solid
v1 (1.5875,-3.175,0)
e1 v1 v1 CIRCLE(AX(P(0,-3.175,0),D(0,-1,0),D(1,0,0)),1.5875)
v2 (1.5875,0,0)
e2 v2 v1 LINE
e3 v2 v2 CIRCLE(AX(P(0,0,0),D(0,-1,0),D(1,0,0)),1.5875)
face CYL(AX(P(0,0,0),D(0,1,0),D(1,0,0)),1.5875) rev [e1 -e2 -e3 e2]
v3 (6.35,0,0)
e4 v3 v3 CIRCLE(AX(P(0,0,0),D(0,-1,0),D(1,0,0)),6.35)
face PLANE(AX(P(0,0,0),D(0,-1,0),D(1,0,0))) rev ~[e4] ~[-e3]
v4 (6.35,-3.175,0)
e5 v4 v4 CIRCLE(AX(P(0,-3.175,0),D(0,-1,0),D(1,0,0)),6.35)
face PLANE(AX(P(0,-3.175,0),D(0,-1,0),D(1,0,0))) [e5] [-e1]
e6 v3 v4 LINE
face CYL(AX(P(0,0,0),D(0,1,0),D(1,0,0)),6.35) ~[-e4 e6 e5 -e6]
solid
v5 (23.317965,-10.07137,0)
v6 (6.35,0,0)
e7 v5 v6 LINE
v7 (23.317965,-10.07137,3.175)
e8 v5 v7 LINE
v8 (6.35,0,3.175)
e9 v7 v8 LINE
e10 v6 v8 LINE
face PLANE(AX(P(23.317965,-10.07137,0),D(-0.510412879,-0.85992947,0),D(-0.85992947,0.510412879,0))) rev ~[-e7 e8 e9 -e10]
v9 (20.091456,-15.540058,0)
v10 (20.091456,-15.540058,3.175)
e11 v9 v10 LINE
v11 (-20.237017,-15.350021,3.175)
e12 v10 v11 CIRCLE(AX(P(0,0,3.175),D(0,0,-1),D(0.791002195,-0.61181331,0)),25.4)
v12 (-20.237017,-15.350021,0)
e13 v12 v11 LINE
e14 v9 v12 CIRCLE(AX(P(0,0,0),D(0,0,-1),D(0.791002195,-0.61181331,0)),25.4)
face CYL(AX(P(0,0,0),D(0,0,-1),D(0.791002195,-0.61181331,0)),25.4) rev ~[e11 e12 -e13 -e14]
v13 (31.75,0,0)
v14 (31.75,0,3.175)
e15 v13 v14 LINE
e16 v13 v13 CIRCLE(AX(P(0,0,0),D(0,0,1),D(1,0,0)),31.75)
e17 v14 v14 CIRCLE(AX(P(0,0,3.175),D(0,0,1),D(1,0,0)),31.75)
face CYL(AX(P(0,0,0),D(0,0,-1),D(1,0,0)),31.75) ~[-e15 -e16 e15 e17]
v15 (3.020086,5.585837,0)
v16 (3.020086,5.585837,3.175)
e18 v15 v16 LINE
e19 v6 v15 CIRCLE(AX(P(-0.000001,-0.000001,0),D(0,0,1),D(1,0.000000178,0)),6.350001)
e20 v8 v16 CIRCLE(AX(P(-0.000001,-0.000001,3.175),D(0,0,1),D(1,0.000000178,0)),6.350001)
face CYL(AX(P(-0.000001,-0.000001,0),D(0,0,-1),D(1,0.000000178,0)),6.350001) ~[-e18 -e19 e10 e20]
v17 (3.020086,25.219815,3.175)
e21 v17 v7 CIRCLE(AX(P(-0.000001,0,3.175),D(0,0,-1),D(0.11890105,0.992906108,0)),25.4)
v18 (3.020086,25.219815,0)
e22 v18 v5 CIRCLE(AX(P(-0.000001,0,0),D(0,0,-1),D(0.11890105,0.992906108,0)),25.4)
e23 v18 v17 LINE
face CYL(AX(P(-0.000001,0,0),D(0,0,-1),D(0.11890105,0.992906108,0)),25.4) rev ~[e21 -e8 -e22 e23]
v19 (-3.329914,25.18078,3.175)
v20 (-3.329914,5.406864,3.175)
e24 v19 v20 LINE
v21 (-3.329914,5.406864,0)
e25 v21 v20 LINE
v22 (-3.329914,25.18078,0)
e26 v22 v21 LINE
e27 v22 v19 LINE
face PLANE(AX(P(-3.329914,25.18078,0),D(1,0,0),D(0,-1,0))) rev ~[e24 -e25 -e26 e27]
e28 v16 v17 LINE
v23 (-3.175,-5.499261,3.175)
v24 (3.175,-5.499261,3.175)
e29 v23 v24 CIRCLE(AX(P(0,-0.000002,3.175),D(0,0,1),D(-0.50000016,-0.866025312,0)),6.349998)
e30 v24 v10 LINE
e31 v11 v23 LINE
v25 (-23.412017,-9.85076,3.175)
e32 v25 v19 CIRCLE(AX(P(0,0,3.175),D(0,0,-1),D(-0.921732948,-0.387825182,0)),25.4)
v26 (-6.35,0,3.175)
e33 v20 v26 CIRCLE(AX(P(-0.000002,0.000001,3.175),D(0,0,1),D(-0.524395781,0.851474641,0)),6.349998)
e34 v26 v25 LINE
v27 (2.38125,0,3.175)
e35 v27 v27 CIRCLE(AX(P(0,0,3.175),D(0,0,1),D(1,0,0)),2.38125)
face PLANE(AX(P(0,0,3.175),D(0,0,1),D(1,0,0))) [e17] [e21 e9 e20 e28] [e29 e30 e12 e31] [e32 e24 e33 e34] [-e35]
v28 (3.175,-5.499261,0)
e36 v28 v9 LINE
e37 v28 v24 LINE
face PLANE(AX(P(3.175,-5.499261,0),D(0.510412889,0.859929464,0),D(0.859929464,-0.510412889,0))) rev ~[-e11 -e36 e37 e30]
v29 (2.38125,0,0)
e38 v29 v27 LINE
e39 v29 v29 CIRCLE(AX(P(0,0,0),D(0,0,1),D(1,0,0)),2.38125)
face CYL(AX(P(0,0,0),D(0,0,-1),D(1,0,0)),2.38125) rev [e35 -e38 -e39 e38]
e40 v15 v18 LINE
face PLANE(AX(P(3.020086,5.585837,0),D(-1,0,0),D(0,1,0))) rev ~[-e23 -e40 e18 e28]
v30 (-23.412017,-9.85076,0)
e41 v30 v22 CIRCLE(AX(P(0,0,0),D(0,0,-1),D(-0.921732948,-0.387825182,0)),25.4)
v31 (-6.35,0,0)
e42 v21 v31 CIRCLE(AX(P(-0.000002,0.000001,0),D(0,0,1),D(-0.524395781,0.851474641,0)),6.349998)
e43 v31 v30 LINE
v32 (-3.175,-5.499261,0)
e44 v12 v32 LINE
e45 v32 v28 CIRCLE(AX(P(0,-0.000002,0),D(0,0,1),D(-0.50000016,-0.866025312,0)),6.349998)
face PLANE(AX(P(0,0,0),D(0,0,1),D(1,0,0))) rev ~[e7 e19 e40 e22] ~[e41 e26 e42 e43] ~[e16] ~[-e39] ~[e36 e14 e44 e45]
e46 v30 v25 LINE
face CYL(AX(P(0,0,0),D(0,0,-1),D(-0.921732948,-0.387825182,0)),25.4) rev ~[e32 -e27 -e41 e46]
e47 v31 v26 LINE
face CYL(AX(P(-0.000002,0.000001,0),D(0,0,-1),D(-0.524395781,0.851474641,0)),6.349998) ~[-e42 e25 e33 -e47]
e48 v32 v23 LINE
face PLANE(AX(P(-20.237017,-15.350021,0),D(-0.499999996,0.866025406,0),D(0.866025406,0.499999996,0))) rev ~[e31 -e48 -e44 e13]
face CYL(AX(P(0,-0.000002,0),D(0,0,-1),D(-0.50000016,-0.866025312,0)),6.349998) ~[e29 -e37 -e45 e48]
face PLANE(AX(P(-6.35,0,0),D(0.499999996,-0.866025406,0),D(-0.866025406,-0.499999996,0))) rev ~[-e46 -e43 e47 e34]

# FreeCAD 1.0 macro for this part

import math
import FreeCAD as App
import Part
import Sketcher
from FreeCAD import Vector
Q = App.Units.Quantity

doc = App.newDocument("Part")
body = doc.addObject("PartDesign::Body", "Body")

# Sketch on XY plane
sketch1 = body.newObject("Sketcher::SketchObject", "Sketch")
sketch1.AttachmentSupport = (doc.getObject("XY_Plane"), [""])
sketch1.MapMode = "FlatFace"
sketch1.addGeometry(Part.Circle(Vector(0, 0, 0), Vector(0, 0, 1), 31.8), False)
sketch1.addGeometry(Part.LineSegment(Vector(3.2, -5.5, 0), Vector(20.1, -15.5, 0)), False)
sketch1.addGeometry(Part.ArcOfCircle(Part.Circle(Vector(0, 0, 0), Vector(0, 0, 1), 25.4), math.radians(-143), math.radians(-38)), False)
sketch1.addGeometry(Part.LineSegment(Vector(-20.2, -15.4, 0), Vector(-3.2, -5.5, 0)), False)
sketch1.addGeometry(Part.ArcOfCircle(Part.Circle(Vector(0, 0, 0), Vector(0, 0, 1), 6.3), math.radians(-120), math.radians(-60)), False)
sketch1.addGeometry(Part.ArcOfCircle(Part.Circle(Vector(0, 0, 0), Vector(0, 0, 1), 25.4), math.radians(98), math.radians(203)), False)
sketch1.addGeometry(Part.LineSegment(Vector(-3.3, 25.2, 0), Vector(-3.3, 5.4, 0)), False)
sketch1.addGeometry(Part.ArcOfCircle(Part.Circle(Vector(0, 0, 0), Vector(0, 0, 1), 6.3), math.radians(122), math.radians(180)), False)
sketch1.addGeometry(Part.LineSegment(Vector(-6.3, 0, 0), Vector(-23.4, -9.9, 0)), False)
sketch1.addGeometry(Part.Circle(Vector(0, 0, 0), Vector(0, 0, 1), 2.4), False)
sketch1.addGeometry(Part.ArcOfCircle(Part.Circle(Vector(0, 0, 0), Vector(0, 0, 1), 6.4), math.radians(0), math.radians(62)), False)
sketch1.addGeometry(Part.LineSegment(Vector(3, 5.6, 0), Vector(3, 25.2, 0)), False)
sketch1.addGeometry(Part.ArcOfCircle(Part.Circle(Vector(0, 0, 0), Vector(0, 0, 1), 25.4), math.radians(-23), math.radians(83)), False)
sketch1.addGeometry(Part.LineSegment(Vector(23.3, -10.1, 0), Vector(6.3, 0, 0)), False)
sketch1.addConstraint(Sketcher.Constraint("Coincident", 1, 2, 2, 2))
sketch1.addConstraint(Sketcher.Constraint("Coincident", 2, 1, 3, 1))
sketch1.addConstraint(Sketcher.Constraint("Coincident", 3, 2, 4, 1))
sketch1.addConstraint(Sketcher.Constraint("Coincident", 4, 2, 1, 1))
sketch1.addConstraint(Sketcher.Constraint("Coincident", 5, 1, 6, 1))
sketch1.addConstraint(Sketcher.Constraint("Coincident", 6, 2, 7, 1))
sketch1.addConstraint(Sketcher.Constraint("Coincident", 7, 2, 8, 1))
sketch1.addConstraint(Sketcher.Constraint("Coincident", 8, 2, 5, 2))
sketch1.addConstraint(Sketcher.Constraint("Coincident", 10, 2, 11, 1))
sketch1.addConstraint(Sketcher.Constraint("Coincident", 11, 2, 12, 2))
sketch1.addConstraint(Sketcher.Constraint("Coincident", 12, 1, 13, 1))
sketch1.addConstraint(Sketcher.Constraint("Coincident", 13, 2, 10, 1))
sketch1.addConstraint(Sketcher.Constraint("Vertical", 6))
sketch1.addConstraint(Sketcher.Constraint("Vertical", 11))
sketch1.addConstraint(Sketcher.Constraint("Coincident", 0, 3, -1, 1))
sketch1.addConstraint(Sketcher.Constraint("Coincident", 2, 3, -1, 1))
sketch1.addConstraint(Sketcher.Constraint("Coincident", 4, 3, -1, 1))
sketch1.addConstraint(Sketcher.Constraint("Coincident", 5, 3, -1, 1))
sketch1.addConstraint(Sketcher.Constraint("Coincident", 7, 3, -1, 1))
sketch1.addConstraint(Sketcher.Constraint("Coincident", 9, 3, -1, 1))
sketch1.addConstraint(Sketcher.Constraint("Coincident", 10, 3, -1, 1))
sketch1.addConstraint(Sketcher.Constraint("Coincident", 12, 3, -1, 1))
sketch1.addConstraint(Sketcher.Constraint("Equal", 2, 5))
sketch1.addConstraint(Sketcher.Constraint("Equal", 4, 7))
sketch1.addConstraint(Sketcher.Constraint("Equal", 5, 12))
sketch1.addConstraint(Sketcher.Constraint("Symmetric", 7, 2, 13, 2, -1, 1))
sketch1.addConstraint(Sketcher.Constraint("PointOnObject", 7, 2, -1))
sketch1.addConstraint(Sketcher.Constraint("Parallel", 3, 8))
sketch1.addConstraint(Sketcher.Constraint("Parallel", 1, 13))
sketch1.addConstraint(Sketcher.Constraint("Horizontal", 3, 2, 4, 2))
sketch1.addConstraint(Sketcher.Constraint("Equal", 3, 8))
sketch1.addConstraint(Sketcher.Constraint("Radius", 2, Q("1 in")))
sketch1.addConstraint(Sketcher.Constraint("Diameter", 0, Q("2.5 in")))
sketch1.addConstraint(Sketcher.Constraint("Radius", 4, Q("0.2499999 in")))
sketch1.addConstraint(Sketcher.Constraint("Diameter", 9, Q("0.1875 in")))
sketch1.addConstraint(Sketcher.Constraint("Angle", 3, Q("30 deg")))
sketch1.addConstraint(Sketcher.Constraint("DistanceX", 5, 1, 11, 2, Q("0.25 in")))
sketch1.addConstraint(Sketcher.Constraint("Distance", 1, 19.671911))
sketch1.addConstraint(Sketcher.Constraint("DistanceY", 6, 2, 6, 1, 19.773916))
pad1 = body.newObject("PartDesign::Pad", "Pad")
pad1.Profile = sketch1
pad1.Length = Q("0.125 in")
body2 = doc.addObject("PartDesign::Body", "Body001")

# Sketch on XZ plane
sketch2 = body2.newObject("Sketcher::SketchObject", "Sketch001")
sketch2.AttachmentSupport = (doc.getObject("XZ_Plane001"), [""])
sketch2.MapMode = "FlatFace"
sketch2.addGeometry(Part.Circle(Vector(0, 0, 0), Vector(0, 0, 1), 6.3), False)
sketch2.addGeometry(Part.Circle(Vector(0, 0, 0), Vector(0, 0, 1), 1.6), False)
sketch2.addConstraint(Sketcher.Constraint("Coincident", 0, 3, -1, 1))
sketch2.addConstraint(Sketcher.Constraint("Coincident", 1, 3, -1, 1))
sketch2.addConstraint(Sketcher.Constraint("Diameter", 0, Q("0.5 in")))
sketch2.addConstraint(Sketcher.Constraint("Diameter", 1, Q("0.125 in")))
pad2 = body2.newObject("PartDesign::Pad", "Pad001")
pad2.Profile = sketch2
pad2.Length = Q("0.125 in")

doc.recompute()
